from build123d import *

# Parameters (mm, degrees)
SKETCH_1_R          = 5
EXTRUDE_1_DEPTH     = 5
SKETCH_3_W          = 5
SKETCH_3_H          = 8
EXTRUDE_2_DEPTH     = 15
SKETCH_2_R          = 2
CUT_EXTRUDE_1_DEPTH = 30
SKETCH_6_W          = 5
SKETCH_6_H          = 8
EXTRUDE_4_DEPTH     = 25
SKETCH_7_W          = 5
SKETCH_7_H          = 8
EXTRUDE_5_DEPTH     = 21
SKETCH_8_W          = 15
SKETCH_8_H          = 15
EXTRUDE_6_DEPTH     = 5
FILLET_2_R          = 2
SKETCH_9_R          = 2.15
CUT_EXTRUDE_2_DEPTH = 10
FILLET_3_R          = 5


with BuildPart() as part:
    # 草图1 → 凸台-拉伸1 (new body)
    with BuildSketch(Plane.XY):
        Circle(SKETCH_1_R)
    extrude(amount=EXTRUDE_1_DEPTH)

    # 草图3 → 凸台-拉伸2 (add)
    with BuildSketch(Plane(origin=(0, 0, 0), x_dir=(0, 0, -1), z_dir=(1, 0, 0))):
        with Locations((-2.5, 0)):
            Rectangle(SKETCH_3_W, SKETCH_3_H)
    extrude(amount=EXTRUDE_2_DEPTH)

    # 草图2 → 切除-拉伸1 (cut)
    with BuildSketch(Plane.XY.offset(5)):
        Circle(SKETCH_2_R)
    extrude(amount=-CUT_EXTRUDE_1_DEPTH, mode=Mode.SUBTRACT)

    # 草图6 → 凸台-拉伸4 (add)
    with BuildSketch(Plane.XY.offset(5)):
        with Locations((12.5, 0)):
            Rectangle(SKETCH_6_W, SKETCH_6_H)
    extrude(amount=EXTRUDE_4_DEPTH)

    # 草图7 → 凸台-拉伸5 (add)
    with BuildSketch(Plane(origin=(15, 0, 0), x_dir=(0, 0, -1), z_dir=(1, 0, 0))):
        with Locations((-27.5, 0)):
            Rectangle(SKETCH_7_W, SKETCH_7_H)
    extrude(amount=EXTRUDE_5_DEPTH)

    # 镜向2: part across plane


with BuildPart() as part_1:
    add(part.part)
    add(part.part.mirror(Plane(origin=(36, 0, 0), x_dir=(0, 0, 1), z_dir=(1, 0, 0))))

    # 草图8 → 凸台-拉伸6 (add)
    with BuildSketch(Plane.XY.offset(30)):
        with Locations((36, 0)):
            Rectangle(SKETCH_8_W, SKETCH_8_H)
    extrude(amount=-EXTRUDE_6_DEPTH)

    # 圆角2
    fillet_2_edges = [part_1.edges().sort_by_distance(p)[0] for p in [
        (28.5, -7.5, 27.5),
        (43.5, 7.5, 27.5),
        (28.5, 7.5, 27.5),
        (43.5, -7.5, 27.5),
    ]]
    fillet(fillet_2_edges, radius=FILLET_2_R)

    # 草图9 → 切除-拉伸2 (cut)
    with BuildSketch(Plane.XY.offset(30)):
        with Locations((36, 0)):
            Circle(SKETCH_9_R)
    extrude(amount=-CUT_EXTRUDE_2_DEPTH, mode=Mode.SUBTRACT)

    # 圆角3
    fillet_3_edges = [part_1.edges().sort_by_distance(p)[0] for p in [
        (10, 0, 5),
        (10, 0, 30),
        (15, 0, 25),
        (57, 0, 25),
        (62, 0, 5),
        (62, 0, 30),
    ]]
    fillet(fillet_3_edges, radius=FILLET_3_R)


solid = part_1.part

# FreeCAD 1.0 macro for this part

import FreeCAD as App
import Part
import Sketcher

V = App.Vector


def edges_at(feature, points):
    """Names of the edges that pass closest to the given points."""
    edges = feature.Shape.Edges
    near = lambda p: min(range(len(edges)), key=lambda i: edges[i].distToShape(Part.Vertex(*p))[0])
    return sorted({f"Edge{near(p) + 1}" for p in points})

doc = App.newDocument("Part")
params = doc.addObject("Spreadsheet::Sheet", "Params")
for row, (alias, value) in enumerate([
    ("sketch1_diameter", "10 mm"),
    ("pad1_length", "5 mm"),
    ("sketch2_width", "8 mm"),
    ("sketch2_height", "5 mm"),
    ("pad2_length", "15 mm"),
    ("sketch3_diameter", "4 mm"),
    ("pocket1_length", "30 mm"),
    ("sketch4_width", "5 mm"),
    ("sketch4_height", "8 mm"),
    ("pad3_length", "25 mm"),
    ("sketch5_width", "8 mm"),
    ("sketch5_height", "5 mm"),
    ("pad4_length", "21 mm"),
    ("sketch6_width", "15 mm"),
    ("pad5_length", "5 mm"),
    ("fillet_radius", "2 mm"),
    ("sketch7_diameter", "4.3 mm"),
    ("pocket2_length", "10 mm"),
    ("fillet2_radius", "5 mm"),
], start=1):
    params.set(f"A{row}", alias)
    params.set(f"B{row}", "=" + value)
    params.setAlias(f"B{row}", alias)

body = doc.addObject("PartDesign::Body", "Body")

sketch1 = body.newObject("Sketcher::SketchObject", "Sketch")
sketch1.AttachmentSupport = (doc.getObject("XY_Plane"), [""])
sketch1.MapMode = "FlatFace"
sketch1.addGeometry(Part.Circle(V(0, 0, 0), V(0, 0, 1), 5), False)
sketch1.addConstraint([
    Sketcher.Constraint("Coincident", 0, 3, -1, 1),
    Sketcher.Constraint("Diameter", 0, 10.0),
])
sketch1.setExpression("Constraints[1]", "Params.sketch1_diameter")
pad1 = body.newObject("PartDesign::Pad", "Pad")
pad1.Profile = sketch1
pad1.setExpression("Length", "Params.pad1_length")

sketch2 = body.newObject("Sketcher::SketchObject", "Sketch001")
sketch2.AttachmentSupport = (doc.getObject("YZ_Plane"), [""])
sketch2.MapMode = "FlatFace"
sketch2.addGeometry([
    Part.LineSegment(V(4, 5, 0), V(-4, 5, 0)),
    Part.LineSegment(V(-4, 5, 0), V(-4, 0, 0)),
    Part.LineSegment(V(-4, 0, 0), V(4, 0, 0)),
    Part.LineSegment(V(4, 0, 0), V(4, 5, 0)),
], False)
sketch2.addConstraint([
    Sketcher.Constraint("Coincident", 0, 2, 1, 1),
    Sketcher.Constraint("Coincident", 1, 2, 2, 1),
    Sketcher.Constraint("Coincident", 2, 2, 3, 1),
    Sketcher.Constraint("Coincident", 3, 2, 0, 1),
    Sketcher.Constraint("Horizontal", 0),
    Sketcher.Constraint("Vertical", 1),
    Sketcher.Constraint("Horizontal", 2),
    Sketcher.Constraint("Vertical", 3),
    Sketcher.Constraint("Symmetric", 1, 2, 2, 2, -1, 1),
    Sketcher.Constraint("DistanceX", 0, 2, 0, 1, 8.0),
    Sketcher.Constraint("DistanceY", 1, 2, 1, 1, 5.0),
])
sketch2.setExpression("Constraints[9]", "Params.sketch2_width")
sketch2.setExpression("Constraints[10]", "Params.sketch2_height")
pad2 = body.newObject("PartDesign::Pad", "Pad001")
pad2.Profile = sketch2
pad2.setExpression("Length", "Params.pad2_length")

sketch3 = body.newObject("Sketcher::SketchObject", "Sketch002")
sketch3.AttachmentSupport = (doc.getObject("XY_Plane"), [""])
sketch3.MapMode = "FlatFace"
sketch3.AttachmentOffset = App.Placement(V(0, 0, 5), App.Rotation())
sketch3.addGeometry(Part.Circle(V(0, 0, 0), V(0, 0, 1), 2), False)
sketch3.addConstraint([
    Sketcher.Constraint("Coincident", 0, 3, -1, 1),
    Sketcher.Constraint("Diameter", 0, 4.0),
])
sketch3.setExpression("Constraints[1]", "Params.sketch3_diameter")
pocket1 = body.newObject("PartDesign::Pocket", "Pocket")
pocket1.Profile = sketch3
pocket1.setExpression("Length", "Params.pocket1_length")

sketch4 = body.newObject("Sketcher::SketchObject", "Sketch003")
sketch4.AttachmentSupport = (doc.getObject("XY_Plane"), [""])
sketch4.MapMode = "FlatFace"
sketch4.AttachmentOffset = App.Placement(V(0, 0, 5), App.Rotation())
sketch4.addGeometry([
    Part.LineSegment(V(10, 4, 0), V(10, -4, 0)),
    Part.LineSegment(V(10, -4, 0), V(15, -4, 0)),
    Part.LineSegment(V(15, -4, 0), V(15, 4, 0)),
    Part.LineSegment(V(15, 4, 0), V(10, 4, 0)),
], False)
sketch4.addConstraint([
    Sketcher.Constraint("Coincident", 0, 2, 1, 1),
    Sketcher.Constraint("Coincident", 1, 2, 2, 1),
    Sketcher.Constraint("Coincident", 2, 2, 3, 1),
    Sketcher.Constraint("Coincident", 3, 2, 0, 1),
    Sketcher.Constraint("Vertical", 0),
    Sketcher.Constraint("Horizontal", 1),
    Sketcher.Constraint("Vertical", 2),
    Sketcher.Constraint("Horizontal", 3),
    Sketcher.Constraint("DistanceX", 1, 1, 1, 2, 5.0),
    Sketcher.Constraint("DistanceY", 0, 2, 0, 1, 8.0),
    Sketcher.Constraint("DistanceX", -1, 1, 0, 2, 10.0),
    Sketcher.Constraint("DistanceY", 0, 2, -1, 1, 4.0),
])
sketch4.setExpression("Constraints[8]", "Params.sketch4_width")
sketch4.setExpression("Constraints[9]", "Params.sketch4_height")
pad3 = body.newObject("PartDesign::Pad", "Pad002")
pad3.Profile = sketch4
pad3.setExpression("Length", "Params.pad3_length")

sketch5 = body.newObject("Sketcher::SketchObject", "Sketch004")
sketch5.AttachmentSupport = (doc.getObject("YZ_Plane"), [""])
sketch5.MapMode = "FlatFace"
sketch5.AttachmentOffset = App.Placement(V(0, 0, 15), App.Rotation())
sketch5.addGeometry([
    Part.LineSegment(V(4, 30, 0), V(-4, 30, 0)),
    Part.LineSegment(V(-4, 30, 0), V(-4, 25, 0)),
    Part.LineSegment(V(-4, 25, 0), V(4, 25, 0)),
    Part.LineSegment(V(4, 25, 0), V(4, 30, 0)),
], False)
sketch5.addConstraint([
    Sketcher.Constraint("Coincident", 0, 2, 1, 1),
    Sketcher.Constraint("Coincident", 1, 2, 2, 1),
    Sketcher.Constraint("Coincident", 2, 2, 3, 1),
    Sketcher.Constraint("Coincident", 3, 2, 0, 1),
    Sketcher.Constraint("Horizontal", 0),
    Sketcher.Constraint("Vertical", 1),
    Sketcher.Constraint("Horizontal", 2),
    Sketcher.Constraint("Vertical", 3),
    Sketcher.Constraint("DistanceX", 0, 2, 0, 1, 8.0),
    Sketcher.Constraint("DistanceY", 1, 2, 1, 1, 5.0),
    Sketcher.Constraint("DistanceX", 0, 2, -1, 1, 4.0),
    Sketcher.Constraint("DistanceY", -1, 1, 0, 2, 30.0),
])
sketch5.setExpression("Constraints[8]", "Params.sketch5_width")
sketch5.setExpression("Constraints[9]", "Params.sketch5_height")
pad4 = body.newObject("PartDesign::Pad", "Pad003")
pad4.Profile = sketch5
pad4.setExpression("Length", "Params.pad4_length")
body2 = doc.addObject("PartDesign::Body", "Body001")
doc.recompute()

body2.BaseFeature = body
doc.recompute()

mirroring = doc.addObject("Part::Mirroring", "Mirroring")
mirroring.Source = body
mirroring.Base = V(36, 0, 0)
mirroring.Normal = V(1, 0, 0)
body3 = doc.addObject("PartDesign::Body", "Body002")
body3.BaseFeature = mirroring
boolean = body2.newObject("PartDesign::Boolean", "Boolean")
boolean.Type = "Fuse"
boolean.addObjects([body3])
doc.recompute()

sketch6 = body2.newObject("Sketcher::SketchObject", "Sketch005")
sketch6.AttachmentSupport = (doc.getObject("XY_Plane001"), [""])
sketch6.MapMode = "FlatFace"
sketch6.AttachmentOffset = App.Placement(V(0, 0, 30), App.Rotation())
sketch6.addGeometry([
    Part.LineSegment(V(28, 8, 0), V(28, -8, 0)),
    Part.LineSegment(V(28, -8, 0), V(44, -8, 0)),
    Part.LineSegment(V(44, -8, 0), V(44, 8, 0)),
    Part.LineSegment(V(44, 8, 0), V(28, 8, 0)),
], False)
sketch6.addConstraint([
    Sketcher.Constraint("Coincident", 0, 2, 1, 1),
    Sketcher.Constraint("Coincident", 1, 2, 2, 1),
    Sketcher.Constraint("Coincident", 2, 2, 3, 1),
    Sketcher.Constraint("Coincident", 3, 2, 0, 1),
    Sketcher.Constraint("Vertical", 0),
    Sketcher.Constraint("Horizontal", 1),
    Sketcher.Constraint("Vertical", 2),
    Sketcher.Constraint("Horizontal", 3),
    Sketcher.Constraint("Equal", 3, 0),
    Sketcher.Constraint("DistanceX", 1, 1, 1, 2, 15.0),
    Sketcher.Constraint("DistanceX", -1, 1, 0, 2, 28.5),
    Sketcher.Constraint("DistanceY", 0, 2, -1, 1, 7.5),
])
sketch6.setExpression("Constraints[9]", "Params.sketch6_width")
pad5 = body2.newObject("PartDesign::Pad", "Pad004")
pad5.Profile = sketch6
pad5.setExpression("Length", "Params.pad5_length")
pad5.Reversed = True
doc.recompute()

fillet = body2.newObject("PartDesign::Fillet", "Fillet")
fillet.Base = (pad5, edges_at(pad5, [
    (28.5, -7.5, 27.5),
    (43.5, 7.5, 27.5),
    (28.5, 7.5, 27.5),
    (43.5, -7.5, 27.5),
]))
fillet.setExpression("Radius", "Params.fillet_radius")

sketch7 = body2.newObject("Sketcher::SketchObject", "Sketch006")
sketch7.AttachmentSupport = (doc.getObject("XY_Plane001"), [""])
sketch7.MapMode = "FlatFace"
sketch7.AttachmentOffset = App.Placement(V(0, 0, 30), App.Rotation())
sketch7.addGeometry(Part.Circle(V(36, 0, 0), V(0, 0, 1), 2.1), False)
sketch7.addConstraint([
    Sketcher.Constraint("PointOnObject", 0, 3, -1),
    Sketcher.Constraint("Diameter", 0, 4.3),
    Sketcher.Constraint("DistanceX", -1, 1, 0, 3, 36.0),
])
sketch7.setExpression("Constraints[1]", "Params.sketch7_diameter")
pocket2 = body2.newObject("PartDesign::Pocket", "Pocket001")
pocket2.Profile = sketch7
pocket2.setExpression("Length", "Params.pocket2_length")
doc.recompute()

fillet2 = body2.newObject("PartDesign::Fillet", "Fillet001")
fillet2.Base = (pocket2, edges_at(pocket2, [
    (10, 0, 5),
    (10, 0, 30),
    (15, 0, 25),
    (57, 0, 25),
    (62, 0, 5),
    (62, 0, 30),
]))
fillet2.setExpression("Radius", "Params.fillet2_radius")
mirroring.Visibility = False

doc.recompute()
